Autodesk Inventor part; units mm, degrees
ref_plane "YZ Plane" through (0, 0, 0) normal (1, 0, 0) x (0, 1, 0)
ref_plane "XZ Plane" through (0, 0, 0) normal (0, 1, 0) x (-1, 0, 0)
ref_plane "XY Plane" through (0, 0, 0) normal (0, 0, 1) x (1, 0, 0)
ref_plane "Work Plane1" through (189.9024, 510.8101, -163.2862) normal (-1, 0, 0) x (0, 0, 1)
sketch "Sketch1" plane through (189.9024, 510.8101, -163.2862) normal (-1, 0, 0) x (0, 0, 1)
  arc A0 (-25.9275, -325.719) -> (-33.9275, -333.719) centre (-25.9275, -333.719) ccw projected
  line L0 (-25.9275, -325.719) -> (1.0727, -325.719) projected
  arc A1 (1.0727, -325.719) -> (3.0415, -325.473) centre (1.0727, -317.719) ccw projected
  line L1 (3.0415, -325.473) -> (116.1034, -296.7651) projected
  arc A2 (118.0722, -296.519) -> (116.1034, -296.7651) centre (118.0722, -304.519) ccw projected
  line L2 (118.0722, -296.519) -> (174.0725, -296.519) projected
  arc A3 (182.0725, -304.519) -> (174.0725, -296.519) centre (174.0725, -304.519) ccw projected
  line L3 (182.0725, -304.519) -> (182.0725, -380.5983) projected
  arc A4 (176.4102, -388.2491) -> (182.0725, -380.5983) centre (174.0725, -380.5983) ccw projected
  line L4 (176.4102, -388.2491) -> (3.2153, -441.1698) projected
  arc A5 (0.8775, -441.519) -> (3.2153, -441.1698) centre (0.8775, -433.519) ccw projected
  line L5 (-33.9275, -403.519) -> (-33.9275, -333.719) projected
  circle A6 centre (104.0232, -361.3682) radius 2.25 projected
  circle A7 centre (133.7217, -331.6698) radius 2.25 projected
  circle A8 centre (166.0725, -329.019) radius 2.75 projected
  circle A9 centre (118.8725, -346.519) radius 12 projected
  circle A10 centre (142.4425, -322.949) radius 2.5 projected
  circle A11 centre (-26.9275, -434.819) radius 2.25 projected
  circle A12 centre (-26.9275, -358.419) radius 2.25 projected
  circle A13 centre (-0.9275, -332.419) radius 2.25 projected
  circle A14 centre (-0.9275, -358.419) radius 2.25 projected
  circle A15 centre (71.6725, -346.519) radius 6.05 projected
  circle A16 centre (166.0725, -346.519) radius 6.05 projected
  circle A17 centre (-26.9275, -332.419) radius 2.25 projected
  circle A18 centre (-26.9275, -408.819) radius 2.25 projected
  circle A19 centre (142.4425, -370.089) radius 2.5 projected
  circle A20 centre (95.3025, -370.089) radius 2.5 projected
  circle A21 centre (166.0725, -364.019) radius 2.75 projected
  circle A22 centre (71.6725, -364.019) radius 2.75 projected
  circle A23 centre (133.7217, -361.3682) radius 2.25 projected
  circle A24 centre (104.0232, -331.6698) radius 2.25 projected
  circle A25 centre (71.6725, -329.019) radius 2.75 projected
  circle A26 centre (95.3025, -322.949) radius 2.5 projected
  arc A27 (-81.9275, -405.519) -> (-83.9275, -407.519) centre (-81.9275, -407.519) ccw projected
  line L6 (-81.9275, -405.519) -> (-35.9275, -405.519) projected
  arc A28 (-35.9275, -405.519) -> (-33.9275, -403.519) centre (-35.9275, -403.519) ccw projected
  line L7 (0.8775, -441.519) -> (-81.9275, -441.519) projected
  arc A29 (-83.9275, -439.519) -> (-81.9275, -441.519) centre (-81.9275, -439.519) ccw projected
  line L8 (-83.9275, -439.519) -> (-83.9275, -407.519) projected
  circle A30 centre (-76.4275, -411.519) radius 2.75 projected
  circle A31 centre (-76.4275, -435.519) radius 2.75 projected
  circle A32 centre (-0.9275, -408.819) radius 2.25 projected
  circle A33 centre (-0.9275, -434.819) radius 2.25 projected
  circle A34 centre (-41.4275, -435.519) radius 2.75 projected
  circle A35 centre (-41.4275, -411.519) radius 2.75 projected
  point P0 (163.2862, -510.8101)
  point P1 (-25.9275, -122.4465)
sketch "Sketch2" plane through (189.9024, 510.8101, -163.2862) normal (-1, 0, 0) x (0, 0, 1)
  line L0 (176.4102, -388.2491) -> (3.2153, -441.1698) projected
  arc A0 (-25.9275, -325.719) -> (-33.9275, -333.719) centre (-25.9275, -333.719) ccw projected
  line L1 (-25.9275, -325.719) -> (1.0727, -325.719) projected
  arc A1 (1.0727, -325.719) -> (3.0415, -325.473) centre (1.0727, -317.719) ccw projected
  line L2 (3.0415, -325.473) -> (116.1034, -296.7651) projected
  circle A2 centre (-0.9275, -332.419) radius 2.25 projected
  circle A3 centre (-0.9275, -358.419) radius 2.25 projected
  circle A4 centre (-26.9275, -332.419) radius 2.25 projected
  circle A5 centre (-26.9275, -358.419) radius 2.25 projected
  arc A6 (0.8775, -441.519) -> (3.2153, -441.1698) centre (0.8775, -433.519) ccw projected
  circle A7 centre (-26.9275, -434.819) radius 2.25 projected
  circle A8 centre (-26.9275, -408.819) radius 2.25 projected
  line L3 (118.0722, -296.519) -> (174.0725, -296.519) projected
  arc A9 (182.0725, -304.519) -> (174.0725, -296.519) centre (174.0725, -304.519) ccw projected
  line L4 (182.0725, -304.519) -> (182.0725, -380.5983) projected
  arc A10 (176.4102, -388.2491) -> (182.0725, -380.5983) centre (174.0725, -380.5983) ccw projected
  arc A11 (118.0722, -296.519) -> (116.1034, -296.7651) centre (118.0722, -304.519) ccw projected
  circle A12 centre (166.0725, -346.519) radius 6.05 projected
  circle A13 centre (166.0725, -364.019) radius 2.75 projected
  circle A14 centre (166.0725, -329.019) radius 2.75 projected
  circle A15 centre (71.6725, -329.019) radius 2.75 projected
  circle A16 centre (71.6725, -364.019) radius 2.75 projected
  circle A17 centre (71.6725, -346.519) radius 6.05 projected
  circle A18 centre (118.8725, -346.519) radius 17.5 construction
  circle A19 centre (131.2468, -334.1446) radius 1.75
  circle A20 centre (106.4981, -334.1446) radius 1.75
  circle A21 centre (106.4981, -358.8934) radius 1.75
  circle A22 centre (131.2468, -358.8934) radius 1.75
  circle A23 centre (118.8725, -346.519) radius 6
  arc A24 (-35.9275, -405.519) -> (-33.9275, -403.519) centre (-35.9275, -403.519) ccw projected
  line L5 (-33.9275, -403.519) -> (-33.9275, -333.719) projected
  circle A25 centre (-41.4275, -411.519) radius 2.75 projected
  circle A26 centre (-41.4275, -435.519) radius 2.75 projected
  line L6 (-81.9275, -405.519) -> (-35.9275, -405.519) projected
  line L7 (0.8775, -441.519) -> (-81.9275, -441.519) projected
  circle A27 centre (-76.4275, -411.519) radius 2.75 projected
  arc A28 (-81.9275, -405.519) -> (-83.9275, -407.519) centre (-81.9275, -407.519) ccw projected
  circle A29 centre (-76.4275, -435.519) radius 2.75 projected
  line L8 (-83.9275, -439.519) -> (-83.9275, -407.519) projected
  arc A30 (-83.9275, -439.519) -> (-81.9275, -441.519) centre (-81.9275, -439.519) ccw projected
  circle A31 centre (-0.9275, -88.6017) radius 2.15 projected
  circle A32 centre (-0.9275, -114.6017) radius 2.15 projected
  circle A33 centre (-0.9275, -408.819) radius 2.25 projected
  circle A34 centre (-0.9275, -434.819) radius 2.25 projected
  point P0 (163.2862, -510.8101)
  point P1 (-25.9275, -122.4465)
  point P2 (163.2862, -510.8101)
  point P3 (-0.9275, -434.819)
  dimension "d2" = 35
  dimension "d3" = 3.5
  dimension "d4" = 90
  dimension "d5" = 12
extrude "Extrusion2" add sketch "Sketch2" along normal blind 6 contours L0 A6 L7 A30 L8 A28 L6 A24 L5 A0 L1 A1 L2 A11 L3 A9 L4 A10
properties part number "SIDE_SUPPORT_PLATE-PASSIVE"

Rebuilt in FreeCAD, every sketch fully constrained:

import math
import FreeCAD as App
import Part
import Sketcher

V = App.Vector
Q = App.Units.Quantity

doc = App.newDocument("Part")
body = doc.addObject("PartDesign::Body", "Body")

sketch1 = body.newObject("Sketcher::SketchObject", "Sketch")
sketch1.AttachmentSupport = (doc.getObject("YZ_Plane"), [""])
sketch1.MapMode = "FlatFace"
sketch1.AttachmentOffset = App.Placement(V(0, 0, 189.9024), App.Rotation())
sketch1.addGeometry(Part.LineSegment(V(69.6, -160.1, 0), V(122.6, 13.1, 0)), False)
sketch1.addGeometry(Part.ArcOfCircle(Part.Circle(V(130.2, 10.8, 0), V(0, 0, 1), 8), math.radians(90), math.radians(163)), False)
sketch1.addGeometry(Part.LineSegment(V(130.2, 18.8, 0), V(206.3, 18.8, 0)), False)
sketch1.addGeometry(Part.ArcOfCircle(Part.Circle(V(206.3, 10.8, 0), V(0, 0, 1), 8), math.radians(0), math.radians(90)), False)
sketch1.addGeometry(Part.LineSegment(V(214.3, 10.8, 0), V(214.3, -45.2, 0)), False)
sketch1.addGeometry(Part.ArcOfCircle(Part.Circle(V(206.3, -45.2, 0), V(0, 0, 1), 8), math.radians(-14.25), math.radians(0)), False)
sketch1.addGeometry(Part.LineSegment(V(214, -47.2, 0), V(185.3, -160.2, 0)), False)
sketch1.addGeometry(Part.ArcOfCircle(Part.Circle(V(193.1, -162.2, 0), V(0, 0, 1), 8), math.radians(165.76), math.radians(180)), False)
sketch1.addGeometry(Part.LineSegment(V(185.1, -162.2, 0), V(185.1, -189.2, 0)), False)
sketch1.addGeometry(Part.ArcOfCircle(Part.Circle(V(177.1, -189.2, 0), V(0, 0, 1), 8), math.radians(-90), math.radians(0)), False)
sketch1.addGeometry(Part.LineSegment(V(177.1, -197.2, 0), V(107.3, -197.2, 0)), False)
sketch1.addGeometry(Part.ArcOfCircle(Part.Circle(V(107.3, -199.2, 0), V(0, 0, 1), 2), math.radians(90), math.radians(180)), False)
sketch1.addGeometry(Part.LineSegment(V(105.3, -199.2, 0), V(105.3, -245.2, 0)), False)
sketch1.addGeometry(Part.ArcOfCircle(Part.Circle(V(103.3, -245.2, 0), V(0, 0, 1), 2), math.radians(-90), math.radians(0)), False)
sketch1.addGeometry(Part.LineSegment(V(103.3, -247.2, 0), V(71.3, -247.2, 0)), False)
sketch1.addGeometry(Part.ArcOfCircle(Part.Circle(V(71.3, -245.2, 0), V(0, 0, 1), 2), math.radians(180), math.radians(270)), False)
sketch1.addGeometry(Part.LineSegment(V(69.3, -245.2, 0), V(69.3, -162.4, 0)), False)
sketch1.addGeometry(Part.ArcOfCircle(Part.Circle(V(77.3, -162.4, 0), V(0, 0, 1), 8), math.radians(163.01), math.radians(180)), False)
sketch1.addGeometry(Part.Circle(V(75.3, -239.7, 0), V(0, 0, 1), 2.8), False)
sketch1.addGeometry(Part.Circle(V(99.3, -239.7, 0), V(0, 0, 1), 2.8), False)
sketch1.addGeometry(Part.Circle(V(75.3, -204.7, 0), V(0, 0, 1), 2.8), False)
sketch1.addGeometry(Part.Circle(V(76, -190.2, 0), V(0, 0, 1), 2.2), False)
sketch1.addGeometry(Part.Circle(V(99.3, -204.7, 0), V(0, 0, 1), 2.8), False)
sketch1.addGeometry(Part.Circle(V(102, -190.2, 0), V(0, 0, 1), 2.2), False)
sketch1.addGeometry(Part.Circle(V(152.4, -190.2, 0), V(0, 0, 1), 2.2), False)
sketch1.addGeometry(Part.Circle(V(76, -164.2, 0), V(0, 0, 1), 2.2), False)
sketch1.addGeometry(Part.Circle(V(102, -164.2, 0), V(0, 0, 1), 2.2), False)
sketch1.addGeometry(Part.Circle(V(152.4, -164.2, 0), V(0, 0, 1), 2.2), False)
sketch1.addGeometry(Part.Circle(V(178.4, -190.2, 0), V(0, 0, 1), 2.2), False)
sketch1.addGeometry(Part.Circle(V(178.4, -164.2, 0), V(0, 0, 1), 2.2), False)
sketch1.addGeometry(Part.Circle(V(146.8, -91.6, 0), V(0, 0, 1), 2.8), False)
sketch1.addGeometry(Part.Circle(V(151.9, -56.8, 0), V(0, 0, 1), 1.8), False)
sketch1.addGeometry(Part.Circle(V(151.9, -32, 0), V(0, 0, 1), 1.8), False)
sketch1.addGeometry(Part.Circle(V(146.8, 2.8, 0), V(0, 0, 1), 2.8), False)
sketch1.addGeometry(Part.Circle(V(164.3, -91.6, 0), V(0, 0, 1), 6), False)
sketch1.addGeometry(Part.Circle(V(181.8, -91.6, 0), V(0, 0, 1), 2.8), False)
sketch1.addGeometry(Part.Circle(V(176.7, -56.8, 0), V(0, 0, 1), 1.8), False)
sketch1.addGeometry(Part.Circle(V(164.3, -44.4, 0), V(0, 0, 1), 6), False)
sketch1.addGeometry(Part.Circle(V(176.7, -32, 0), V(0, 0, 1), 1.8), False)
sketch1.addGeometry(Part.Circle(V(164.3, 2.8, 0), V(0, 0, 1), 6), False)
sketch1.addGeometry(Part.Circle(V(181.8, 2.8, 0), V(0, 0, 1), 2.8), False)
sketch1.addConstraint(Sketcher.Constraint("Tangent", 0, 2, 1, 2))
sketch1.addConstraint(Sketcher.Constraint("Tangent", 1, 1, 2, 1))
sketch1.addConstraint(Sketcher.Constraint("Tangent", 2, 2, 3, 2))
sketch1.addConstraint(Sketcher.Constraint("Tangent", 3, 1, 4, 1))
sketch1.addConstraint(Sketcher.Constraint("Tangent", 4, 2, 5, 2))
sketch1.addConstraint(Sketcher.Constraint("Tangent", 5, 1, 6, 1))
sketch1.addConstraint(Sketcher.Constraint("Tangent", 6, 2, 7, 1))
sketch1.addConstraint(Sketcher.Constraint("Tangent", 7, 2, 8, 1))
sketch1.addConstraint(Sketcher.Constraint("Tangent", 8, 2, 9, 2))
sketch1.addConstraint(Sketcher.Constraint("Tangent", 9, 1, 10, 1))
sketch1.addConstraint(Sketcher.Constraint("Tangent", 10, 2, 11, 1))
sketch1.addConstraint(Sketcher.Constraint("Tangent", 11, 2, 12, 1))
sketch1.addConstraint(Sketcher.Constraint("Tangent", 12, 2, 13, 2))
sketch1.addConstraint(Sketcher.Constraint("Tangent", 13, 1, 14, 1))
sketch1.addConstraint(Sketcher.Constraint("Tangent", 14, 2, 15, 2))
sketch1.addConstraint(Sketcher.Constraint("Tangent", 15, 1, 16, 1))
sketch1.addConstraint(Sketcher.Constraint("Tangent", 16, 2, 17, 2))
sketch1.addConstraint(Sketcher.Constraint("Tangent", 17, 1, 0, 1))
sketch1.addConstraint(Sketcher.Constraint("Horizontal", 2))
sketch1.addConstraint(Sketcher.Constraint("Vertical", 4))
sketch1.addConstraint(Sketcher.Constraint("Vertical", 8))
sketch1.addConstraint(Sketcher.Constraint("Horizontal", 10))
sketch1.addConstraint(Sketcher.Constraint("Vertical", 12))
sketch1.addConstraint(Sketcher.Constraint("Horizontal", 14))
sketch1.addConstraint(Sketcher.Constraint("Vertical", 16))
sketch1.addConstraint(Sketcher.Constraint("Equal", 1, 3))
sketch1.addConstraint(Sketcher.Constraint("Equal", 3, 9))
sketch1.addConstraint(Sketcher.Constraint("Equal", 11, 13))
sketch1.addConstraint(Sketcher.Constraint("Equal", 13, 15))
sketch1.addConstraint(Sketcher.Constraint("Equal", 9, 17))
sketch1.addConstraint(Sketcher.Constraint("Equal", 18, 19))
sketch1.addConstraint(Sketcher.Constraint("Equal", 19, 20))
sketch1.addConstraint(Sketcher.Constraint("Equal", 20, 22))
sketch1.addConstraint(Sketcher.Constraint("Equal", 21, 23))
sketch1.addConstraint(Sketcher.Constraint("Equal", 23, 24))
sketch1.addConstraint(Sketcher.Constraint("Equal", 24, 25))
sketch1.addConstraint(Sketcher.Constraint("Equal", 25, 26))
sketch1.addConstraint(Sketcher.Constraint("Equal", 26, 27))
sketch1.addConstraint(Sketcher.Constraint("Equal", 27, 28))
sketch1.addConstraint(Sketcher.Constraint("Equal", 28, 29))
sketch1.addConstraint(Sketcher.Constraint("Equal", 22, 30))
sketch1.addConstraint(Sketcher.Constraint("Equal", 31, 32))
sketch1.addConstraint(Sketcher.Constraint("Equal", 30, 33))
sketch1.addConstraint(Sketcher.Constraint("Equal", 33, 35))
sketch1.addConstraint(Sketcher.Constraint("Equal", 32, 36))
sketch1.addConstraint(Sketcher.Constraint("Equal", 36, 38))
sketch1.addConstraint(Sketcher.Constraint("Equal", 34, 39))
sketch1.addConstraint(Sketcher.Constraint("Equal", 35, 40))
sketch1.addConstraint(Sketcher.Constraint("Horizontal", 18, 3, 19, 3))
sketch1.addConstraint(Sketcher.Constraint("Horizontal", 20, 3, 22, 3))
sketch1.addConstraint(Sketcher.Constraint("Horizontal", 21, 3, 23, 3))
sketch1.addConstraint(Sketcher.Constraint("Horizontal", 23, 3, 24, 3))
sketch1.addConstraint(Sketcher.Constraint("Horizontal", 25, 3, 26, 3))
sketch1.addConstraint(Sketcher.Constraint("Horizontal", 26, 3, 27, 3))
sketch1.addConstraint(Sketcher.Constraint("Horizontal", 24, 3, 28, 3))
sketch1.addConstraint(Sketcher.Constraint("Horizontal", 27, 3, 29, 3))
sketch1.addConstraint(Sketcher.Constraint("Horizontal", 30, 3, 34, 3))
sketch1.addConstraint(Sketcher.Constraint("Horizontal", 34, 3, 35, 3))
sketch1.addConstraint(Sketcher.Constraint("Horizontal", 31, 3, 36, 3))
sketch1.addConstraint(Sketcher.Constraint("Horizontal", 32, 3, 38, 3))
sketch1.addConstraint(Sketcher.Constraint("Horizontal", 33, 3, 39, 3))
sketch1.addConstraint(Sketcher.Constraint("Horizontal", 39, 3, 40, 3))
sketch1.addConstraint(Sketcher.Constraint("Vertical", 18, 3, 20, 3))
sketch1.addConstraint(Sketcher.Constraint("Vertical", 19, 3, 22, 3))
sketch1.addConstraint(Sketcher.Constraint("Vertical", 21, 3, 25, 3))
sketch1.addConstraint(Sketcher.Constraint("Vertical", 23, 3, 26, 3))
sketch1.addConstraint(Sketcher.Constraint("Vertical", 24, 3, 27, 3))
sketch1.addConstraint(Sketcher.Constraint("Vertical", 28, 3, 29, 3))
sketch1.addConstraint(Sketcher.Constraint("Vertical", 31, 3, 32, 3))
sketch1.addConstraint(Sketcher.Constraint("Vertical", 30, 3, 33, 3))
sketch1.addConstraint(Sketcher.Constraint("Vertical", 34, 3, 37, 3))
sketch1.addConstraint(Sketcher.Constraint("Vertical", 36, 3, 38, 3))
sketch1.addConstraint(Sketcher.Constraint("Vertical", 37, 3, 39, 3))
sketch1.addConstraint(Sketcher.Constraint("Vertical", 35, 3, 40, 3))
sketch1.addConstraint(Sketcher.Constraint("Diameter", 37, Q("12 mm")))
sketch1.addConstraint(Sketcher.Constraint("Diameter", 31, Q("3.5 mm")))
sketch1.addConstraint(Sketcher.Constraint("Radius", 1, Q("8 mm")))
sketch1.addConstraint(Sketcher.Constraint("Radius", 11, Q("2 mm")))
sketch1.addConstraint(Sketcher.Constraint("DistanceY", 18, 3, 20, 3, Q("35 mm")))
sketch1.addConstraint(Sketcher.Constraint("DistanceY", 11, 3, 26, 3, Q("35 mm")))
sketch1.addConstraint(Sketcher.Constraint("DistanceX", 30, 3, 35, 3, Q("35 mm")))
sketch1.addConstraint(Sketcher.Constraint("Diameter", 18, Q("5.5 mm")))
sketch1.addConstraint(Sketcher.Constraint("Diameter", 21, Q("4.5 mm")))
sketch1.addConstraint(Sketcher.Constraint("Diameter", 34, Q("12.1 mm")))
sketch1.addConstraint(Sketcher.Constraint("DistanceX", 14, 2, 14, 1, Q("32 mm")))
sketch1.addConstraint(Sketcher.Constraint("DistanceY", 12, 2, 12, 1, Q("46 mm")))
sketch1.addConstraint(Sketcher.Constraint("DistanceX", 10, 2, 10, 1, Q("69.8 mm")))
sketch1.addConstraint(Sketcher.Constraint("DistanceY", 7, 3, 3, 3, Q("173 mm")))
sketch1.addConstraint(Sketcher.Constraint("DistanceY", 9, 3, 7, 3, Q("27 mm")))
sketch1.addConstraint(Sketcher.Constraint("DistanceX", 11, 3, 3, 3, Q("99 mm")))
sketch1.addConstraint(Sketcher.Constraint("DistanceX", 15, 3, 18, 3, Q("4 mm")))
sketch1.addConstraint(Sketcher.Constraint("DistanceX", 19, 3, 13, 3, Q("4 mm")))
sketch1.addConstraint(Sketcher.Constraint("DistanceY", 11, 3, 21, 3, Q("9 mm")))
sketch1.addConstraint(Sketcher.Constraint("DistanceX", 21, 3, 23, 3, Q("26 mm")))
sketch1.addConstraint(Sketcher.Constraint("DistanceX", 24, 3, 28, 3, Q("26 mm")))
sketch1.addConstraint(Sketcher.Constraint("DistanceY", 33, 3, 1, 3, Q("8 mm")))
sketch1.addConstraint(Sketcher.Constraint("DistanceX", 39, 3, 3, 3, Q("42 mm")))
sketch1.addConstraint(Sketcher.Constraint("Angle", 0, Q("73.0092 deg")))
sketch1.addConstraint(Sketcher.Constraint("Radius", 5, Q("7.9965 mm")))
sketch1.addConstraint(Sketcher.Constraint("Radius", 7, Q("8.0028 mm")))
sketch1.addConstraint(Sketcher.Constraint("DistanceY", 15, 3, 18, 3, Q("5.5 mm")))
sketch1.addConstraint(Sketcher.Constraint("DistanceX", 20, 3, 21, 3, Q("0.7 mm")))
sketch1.addConstraint(Sketcher.Constraint("DistanceX", 24, 3, 9, 3, Q("24.7 mm")))
sketch1.addConstraint(Sketcher.Constraint("DistanceX", 30, 3, 27, 3, Q("5.6 mm")))
sketch1.addConstraint(Sketcher.Constraint("DistanceY", 27, 3, 30, 3, Q("72.6 mm")))
sketch1.addConstraint(Sketcher.Constraint("DistanceY", 34, 3, 37, 3, Q("47.2 mm")))
sketch1.addConstraint(Sketcher.Constraint("DistanceY", 16, 1, 16, 2, Q("82.805 mm")))
sketch1.addConstraint(Sketcher.Constraint("DistanceY", 4, 2, 4, 1, Q("56.0003 mm")))
sketch1.addConstraint(Sketcher.Constraint("DistanceX", -1, 1, 3, 3, Q("206.291 mm")))
sketch1.addConstraint(Sketcher.Constraint("DistanceY", 31, 3, -1, 1, Q("56.788 mm")))
sketch1.addConstraint(Sketcher.Constraint("DistanceY", -1, 1, 0, 2, Q("13.124 mm")))
sketch1.addConstraint(Sketcher.Constraint("DistanceX", 31, 3, 5, 3, Q("54.378 mm")))
sketch1.addConstraint(Sketcher.Constraint("DistanceX", 36, 3, 5, 3, Q("29.629 mm")))
sketch1.addConstraint(Sketcher.Constraint("DistanceY", 32, 3, -1, 1, Q("32.0394 mm")))
pad1 = body.newObject("PartDesign::Pad", "Pad")
pad1.Profile = sketch1
pad1.Length = 6
pad1.Reversed = True

doc.recompute()
